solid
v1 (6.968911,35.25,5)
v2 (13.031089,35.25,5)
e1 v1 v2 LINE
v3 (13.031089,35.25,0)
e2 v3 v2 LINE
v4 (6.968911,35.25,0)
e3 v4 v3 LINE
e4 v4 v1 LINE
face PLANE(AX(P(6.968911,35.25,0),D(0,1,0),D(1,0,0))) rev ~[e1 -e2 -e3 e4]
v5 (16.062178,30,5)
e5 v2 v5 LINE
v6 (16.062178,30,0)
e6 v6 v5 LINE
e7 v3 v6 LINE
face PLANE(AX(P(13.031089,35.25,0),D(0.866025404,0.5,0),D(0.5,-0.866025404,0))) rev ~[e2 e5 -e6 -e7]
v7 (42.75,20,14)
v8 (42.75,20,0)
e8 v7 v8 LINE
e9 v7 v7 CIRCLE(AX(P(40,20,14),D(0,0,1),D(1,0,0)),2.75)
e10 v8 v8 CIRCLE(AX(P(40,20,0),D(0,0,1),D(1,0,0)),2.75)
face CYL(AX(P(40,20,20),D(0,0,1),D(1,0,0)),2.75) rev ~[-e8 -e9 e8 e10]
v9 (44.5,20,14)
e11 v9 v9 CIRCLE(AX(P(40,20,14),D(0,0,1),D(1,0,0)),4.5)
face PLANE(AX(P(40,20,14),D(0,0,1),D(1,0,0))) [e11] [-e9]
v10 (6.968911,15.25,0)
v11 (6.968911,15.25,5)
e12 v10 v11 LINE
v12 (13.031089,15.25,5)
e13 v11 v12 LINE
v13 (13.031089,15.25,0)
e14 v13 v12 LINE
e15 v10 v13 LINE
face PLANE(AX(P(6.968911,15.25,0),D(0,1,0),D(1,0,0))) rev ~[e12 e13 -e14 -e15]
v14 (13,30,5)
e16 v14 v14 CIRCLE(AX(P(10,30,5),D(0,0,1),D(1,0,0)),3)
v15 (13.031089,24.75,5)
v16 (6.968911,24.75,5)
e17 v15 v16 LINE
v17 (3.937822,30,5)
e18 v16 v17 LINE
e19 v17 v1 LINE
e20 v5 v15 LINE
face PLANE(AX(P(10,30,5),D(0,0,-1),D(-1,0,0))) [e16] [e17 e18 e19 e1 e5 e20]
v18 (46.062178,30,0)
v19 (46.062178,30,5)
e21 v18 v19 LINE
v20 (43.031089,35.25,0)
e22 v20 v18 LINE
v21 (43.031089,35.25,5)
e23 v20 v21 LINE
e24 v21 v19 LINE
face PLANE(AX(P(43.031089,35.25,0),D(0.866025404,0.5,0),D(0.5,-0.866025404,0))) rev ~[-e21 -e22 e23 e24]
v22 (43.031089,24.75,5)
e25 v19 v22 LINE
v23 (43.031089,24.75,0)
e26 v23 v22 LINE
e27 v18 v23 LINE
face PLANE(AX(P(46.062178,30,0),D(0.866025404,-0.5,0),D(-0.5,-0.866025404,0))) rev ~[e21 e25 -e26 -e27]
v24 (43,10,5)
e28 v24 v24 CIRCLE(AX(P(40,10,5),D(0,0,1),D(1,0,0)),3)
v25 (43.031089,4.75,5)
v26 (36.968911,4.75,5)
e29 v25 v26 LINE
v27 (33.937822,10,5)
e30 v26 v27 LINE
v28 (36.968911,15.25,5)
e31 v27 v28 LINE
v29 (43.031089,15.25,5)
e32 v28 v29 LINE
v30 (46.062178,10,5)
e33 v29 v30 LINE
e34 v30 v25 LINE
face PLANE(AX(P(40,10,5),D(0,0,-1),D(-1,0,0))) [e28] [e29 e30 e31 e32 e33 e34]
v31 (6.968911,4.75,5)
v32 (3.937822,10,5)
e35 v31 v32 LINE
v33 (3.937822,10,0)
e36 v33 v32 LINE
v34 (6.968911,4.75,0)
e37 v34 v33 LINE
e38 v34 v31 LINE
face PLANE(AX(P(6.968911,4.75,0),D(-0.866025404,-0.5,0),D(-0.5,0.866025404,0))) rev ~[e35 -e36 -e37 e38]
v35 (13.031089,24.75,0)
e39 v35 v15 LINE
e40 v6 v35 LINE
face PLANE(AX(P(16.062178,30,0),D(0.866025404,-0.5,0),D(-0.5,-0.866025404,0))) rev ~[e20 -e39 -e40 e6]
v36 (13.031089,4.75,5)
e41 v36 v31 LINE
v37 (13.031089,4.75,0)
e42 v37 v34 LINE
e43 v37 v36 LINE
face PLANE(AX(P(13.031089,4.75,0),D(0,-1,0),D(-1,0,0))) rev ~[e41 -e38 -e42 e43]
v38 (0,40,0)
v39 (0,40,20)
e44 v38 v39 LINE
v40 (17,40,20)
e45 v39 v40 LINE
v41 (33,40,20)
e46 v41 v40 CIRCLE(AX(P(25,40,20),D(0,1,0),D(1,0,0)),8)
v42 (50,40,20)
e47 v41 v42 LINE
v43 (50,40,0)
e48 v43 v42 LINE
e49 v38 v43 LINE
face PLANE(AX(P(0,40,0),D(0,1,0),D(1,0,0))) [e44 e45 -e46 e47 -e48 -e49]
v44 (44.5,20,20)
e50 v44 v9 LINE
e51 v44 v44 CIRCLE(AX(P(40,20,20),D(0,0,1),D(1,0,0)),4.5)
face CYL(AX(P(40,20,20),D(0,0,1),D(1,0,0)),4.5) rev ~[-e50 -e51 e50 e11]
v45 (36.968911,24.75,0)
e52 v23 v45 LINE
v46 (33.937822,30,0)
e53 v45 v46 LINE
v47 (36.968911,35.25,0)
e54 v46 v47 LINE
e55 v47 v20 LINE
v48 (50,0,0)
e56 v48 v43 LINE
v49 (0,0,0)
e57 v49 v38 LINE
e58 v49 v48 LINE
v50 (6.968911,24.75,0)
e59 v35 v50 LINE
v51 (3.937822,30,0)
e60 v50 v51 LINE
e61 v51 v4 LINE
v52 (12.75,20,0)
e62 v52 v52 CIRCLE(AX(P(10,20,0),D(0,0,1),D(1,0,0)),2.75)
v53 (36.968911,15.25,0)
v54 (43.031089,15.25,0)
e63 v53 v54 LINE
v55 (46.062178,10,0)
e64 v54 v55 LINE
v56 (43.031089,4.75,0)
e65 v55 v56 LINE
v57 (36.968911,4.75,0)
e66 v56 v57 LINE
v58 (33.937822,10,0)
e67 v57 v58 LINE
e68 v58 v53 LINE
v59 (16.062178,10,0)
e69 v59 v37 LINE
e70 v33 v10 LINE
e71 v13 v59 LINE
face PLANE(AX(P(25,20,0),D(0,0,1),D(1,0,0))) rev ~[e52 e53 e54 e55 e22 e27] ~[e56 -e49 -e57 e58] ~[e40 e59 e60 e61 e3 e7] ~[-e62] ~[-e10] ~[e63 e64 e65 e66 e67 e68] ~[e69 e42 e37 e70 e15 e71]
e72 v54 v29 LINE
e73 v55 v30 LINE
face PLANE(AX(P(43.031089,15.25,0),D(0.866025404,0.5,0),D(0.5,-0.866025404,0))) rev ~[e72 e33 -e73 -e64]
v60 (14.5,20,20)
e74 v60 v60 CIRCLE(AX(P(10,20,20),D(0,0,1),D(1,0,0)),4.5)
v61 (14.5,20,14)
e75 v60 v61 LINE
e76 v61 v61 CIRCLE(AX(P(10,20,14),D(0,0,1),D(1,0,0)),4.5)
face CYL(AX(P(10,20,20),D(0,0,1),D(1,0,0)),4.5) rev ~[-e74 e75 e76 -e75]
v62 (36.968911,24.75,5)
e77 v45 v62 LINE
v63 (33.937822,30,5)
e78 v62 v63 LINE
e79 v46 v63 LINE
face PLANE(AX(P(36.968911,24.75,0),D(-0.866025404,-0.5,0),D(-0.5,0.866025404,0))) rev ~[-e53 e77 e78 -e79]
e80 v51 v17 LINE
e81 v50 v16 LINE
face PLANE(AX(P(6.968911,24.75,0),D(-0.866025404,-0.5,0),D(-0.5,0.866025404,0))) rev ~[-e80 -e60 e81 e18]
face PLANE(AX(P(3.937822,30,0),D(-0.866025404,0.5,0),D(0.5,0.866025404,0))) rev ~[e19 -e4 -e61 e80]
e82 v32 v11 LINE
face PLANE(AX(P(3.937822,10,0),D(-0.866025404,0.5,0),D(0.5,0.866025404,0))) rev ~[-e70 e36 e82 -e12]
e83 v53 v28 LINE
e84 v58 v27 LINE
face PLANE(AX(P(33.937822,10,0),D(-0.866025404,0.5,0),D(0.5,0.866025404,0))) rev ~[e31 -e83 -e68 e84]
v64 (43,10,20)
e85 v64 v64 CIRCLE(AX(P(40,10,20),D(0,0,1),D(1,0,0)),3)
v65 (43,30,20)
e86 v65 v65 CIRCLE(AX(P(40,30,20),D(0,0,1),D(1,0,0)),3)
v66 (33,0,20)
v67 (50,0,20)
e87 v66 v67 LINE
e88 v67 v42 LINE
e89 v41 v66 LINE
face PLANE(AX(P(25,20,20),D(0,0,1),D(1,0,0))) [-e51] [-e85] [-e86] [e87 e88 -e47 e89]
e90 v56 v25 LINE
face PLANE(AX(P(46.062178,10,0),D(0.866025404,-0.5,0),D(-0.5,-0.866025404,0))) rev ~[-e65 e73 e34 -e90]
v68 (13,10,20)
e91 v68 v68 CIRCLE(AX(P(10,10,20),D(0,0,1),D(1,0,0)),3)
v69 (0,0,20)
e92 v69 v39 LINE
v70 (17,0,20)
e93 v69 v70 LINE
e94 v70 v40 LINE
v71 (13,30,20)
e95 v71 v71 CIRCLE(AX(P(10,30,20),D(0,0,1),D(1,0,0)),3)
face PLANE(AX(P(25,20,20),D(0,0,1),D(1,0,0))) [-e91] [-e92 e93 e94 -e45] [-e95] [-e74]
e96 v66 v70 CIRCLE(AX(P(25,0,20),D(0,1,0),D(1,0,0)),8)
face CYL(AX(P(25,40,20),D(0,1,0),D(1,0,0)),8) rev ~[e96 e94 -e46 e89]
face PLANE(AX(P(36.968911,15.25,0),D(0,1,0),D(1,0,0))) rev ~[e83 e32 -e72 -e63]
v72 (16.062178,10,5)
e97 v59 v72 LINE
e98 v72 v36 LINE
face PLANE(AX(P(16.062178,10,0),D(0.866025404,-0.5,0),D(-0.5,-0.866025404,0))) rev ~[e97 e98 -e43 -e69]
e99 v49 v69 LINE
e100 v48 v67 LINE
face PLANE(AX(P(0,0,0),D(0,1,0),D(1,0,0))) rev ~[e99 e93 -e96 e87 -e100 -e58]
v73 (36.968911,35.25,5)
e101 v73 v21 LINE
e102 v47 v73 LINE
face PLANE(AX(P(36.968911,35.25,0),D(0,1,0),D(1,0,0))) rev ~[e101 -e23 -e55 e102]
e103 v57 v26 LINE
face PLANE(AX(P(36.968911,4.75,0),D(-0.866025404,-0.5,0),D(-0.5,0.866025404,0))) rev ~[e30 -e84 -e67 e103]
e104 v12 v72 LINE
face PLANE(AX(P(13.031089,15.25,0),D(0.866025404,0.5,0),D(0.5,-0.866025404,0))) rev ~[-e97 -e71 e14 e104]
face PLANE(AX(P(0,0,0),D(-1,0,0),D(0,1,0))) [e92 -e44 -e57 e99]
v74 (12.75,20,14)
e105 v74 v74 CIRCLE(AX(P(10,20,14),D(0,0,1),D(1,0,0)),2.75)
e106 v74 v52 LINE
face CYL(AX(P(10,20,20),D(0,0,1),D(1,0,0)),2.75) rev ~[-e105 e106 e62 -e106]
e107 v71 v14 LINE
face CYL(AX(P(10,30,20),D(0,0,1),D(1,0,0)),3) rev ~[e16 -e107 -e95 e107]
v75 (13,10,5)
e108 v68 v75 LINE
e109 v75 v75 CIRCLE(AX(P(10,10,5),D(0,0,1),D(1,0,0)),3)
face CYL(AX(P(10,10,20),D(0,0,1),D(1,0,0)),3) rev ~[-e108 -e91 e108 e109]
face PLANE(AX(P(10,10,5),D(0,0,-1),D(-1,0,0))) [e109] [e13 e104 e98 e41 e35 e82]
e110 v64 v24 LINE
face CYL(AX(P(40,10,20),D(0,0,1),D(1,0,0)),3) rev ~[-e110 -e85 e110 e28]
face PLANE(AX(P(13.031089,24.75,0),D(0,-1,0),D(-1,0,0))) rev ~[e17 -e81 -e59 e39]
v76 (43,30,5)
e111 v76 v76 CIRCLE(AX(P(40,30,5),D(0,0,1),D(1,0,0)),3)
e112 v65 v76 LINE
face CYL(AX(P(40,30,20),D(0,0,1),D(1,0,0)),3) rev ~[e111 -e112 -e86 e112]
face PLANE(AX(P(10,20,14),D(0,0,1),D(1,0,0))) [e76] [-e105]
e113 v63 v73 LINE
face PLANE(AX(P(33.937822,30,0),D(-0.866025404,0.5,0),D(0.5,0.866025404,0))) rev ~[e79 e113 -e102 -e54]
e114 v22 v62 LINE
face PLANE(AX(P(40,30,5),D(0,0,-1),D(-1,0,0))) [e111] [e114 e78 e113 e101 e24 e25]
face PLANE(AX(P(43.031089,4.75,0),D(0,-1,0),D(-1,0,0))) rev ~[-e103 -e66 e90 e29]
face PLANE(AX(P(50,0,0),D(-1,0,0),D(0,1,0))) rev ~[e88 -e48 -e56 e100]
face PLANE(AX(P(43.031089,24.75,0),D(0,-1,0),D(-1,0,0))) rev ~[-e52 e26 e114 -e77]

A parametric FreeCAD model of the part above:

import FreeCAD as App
import Part
import Sketcher

V = App.Vector
Q = App.Units.Quantity

doc = App.newDocument("Part")
body = doc.addObject("PartDesign::Body", "Body")

# Sketch on XY plane
sketch1 = doc.addObject("Sketcher::SketchObject", "Sketch")
body.addObject(sketch1)
sketch1.AttachmentSupport = (doc.XY_Plane, [""])
sketch1.MapMode = "FlatFace"
sketch1.addGeometry(Part.LineSegment(V(0, 40, 0), V(0, 0, 0)), False)
sketch1.addGeometry(Part.LineSegment(V(0, 0, 0), V(50, 0, 0)), False)
sketch1.addGeometry(Part.LineSegment(V(50, 0, 0), V(50, 40, 0)), False)
sketch1.addGeometry(Part.LineSegment(V(50, 40, 0), V(0, 40, 0)), False)
sketch1.addConstraint(Sketcher.Constraint("Coincident", 0, 2, 1, 1))
sketch1.addConstraint(Sketcher.Constraint("Coincident", 1, 2, 2, 1))
sketch1.addConstraint(Sketcher.Constraint("Coincident", 2, 2, 3, 1))
sketch1.addConstraint(Sketcher.Constraint("Coincident", 3, 2, 0, 1))
sketch1.addConstraint(Sketcher.Constraint("Vertical", 0))
sketch1.addConstraint(Sketcher.Constraint("Horizontal", 1))
sketch1.addConstraint(Sketcher.Constraint("Vertical", 2))
sketch1.addConstraint(Sketcher.Constraint("Horizontal", 3))
sketch1.addConstraint(Sketcher.Constraint("Coincident", 0, 2, -1, 1))
sketch1.addConstraint(Sketcher.Constraint("DistanceX", 1, 1, 1, 2, 50.0))
sketch1.addConstraint(Sketcher.Constraint("DistanceY", 0, 2, 0, 1, 40.0))
pad1 = doc.addObject("PartDesign::Pad", "Pad")
body.addObject(pad1)
pad1.Profile = sketch1
pad1.Length = 20

# Sketch on XZ plane
sketch2 = doc.addObject("Sketcher::SketchObject", "Sketch001")
body.addObject(sketch2)
sketch2.AttachmentSupport = (doc.XZ_Plane, [""])
sketch2.MapMode = "FlatFace"
sketch2.AttachmentOffset = App.Placement(V(0, 0, -40), App.Rotation())
sketch2.addGeometry(Part.Circle(V(25, 20, 0), V(0, 0, 1), 8), False)
sketch2.addConstraint(Sketcher.Constraint("Diameter", 0, 16.0))
sketch2.addConstraint(Sketcher.Constraint("DistanceX", -1, 1, 0, 3, 25.0))
sketch2.addConstraint(Sketcher.Constraint("DistanceY", -1, 1, 0, 3, 20.0))
pocket1 = doc.addObject("PartDesign::Pocket", "Pocket")
body.addObject(pocket1)
pocket1.Profile = sketch2
pocket1.Length = 43
pocket1.Reversed = True

# Sketch on XY plane
sketch3 = doc.addObject("Sketcher::SketchObject", "Sketch002")
body.addObject(sketch3)
sketch3.AttachmentSupport = (doc.XY_Plane, [""])
sketch3.MapMode = "FlatFace"
sketch3.AttachmentOffset = App.Placement(V(0, 0, 20), App.Rotation())
sketch3.addGeometry(Part.Circle(V(10, 30, 0), V(0, 0, 1), 3), False)
sketch3.addGeometry(Part.Circle(V(10, 10, 0), V(0, 0, 1), 3), False)
sketch3.addGeometry(Part.Circle(V(40, 30, 0), V(0, 0, 1), 3), False)
sketch3.addGeometry(Part.Circle(V(40, 10, 0), V(0, 0, 1), 3), False)
sketch3.addConstraint(Sketcher.Constraint("Equal", 0, 1))
sketch3.addConstraint(Sketcher.Constraint("Equal", 1, 2))
sketch3.addConstraint(Sketcher.Constraint("Equal", 2, 3))
sketch3.addConstraint(Sketcher.Constraint("Horizontal", 0, 3, 2, 3))
sketch3.addConstraint(Sketcher.Constraint("Horizontal", 1, 3, 3, 3))
sketch3.addConstraint(Sketcher.Constraint("Vertical", 0, 3, 1, 3))
sketch3.addConstraint(Sketcher.Constraint("Vertical", 2, 3, 3, 3))
sketch3.addConstraint(Sketcher.Constraint("Diameter", 0, 6.0))
sketch3.addConstraint(Sketcher.Constraint("DistanceX", -1, 1, 0, 3, 10.0))
sketch3.addConstraint(Sketcher.Constraint("DistanceY", -1, 1, 0, 3, 30.0))
sketch3.addConstraint(Sketcher.Constraint("DistanceY", -1, 1, 1, 3, 10.0))
sketch3.addConstraint(Sketcher.Constraint("DistanceX", -1, 1, 2, 3, 40.0))
pocket2 = doc.addObject("PartDesign::Pocket", "Pocket001")
body.addObject(pocket2)
pocket2.Profile = sketch3
pocket2.Length = 43

# Sketch on XY plane
sketch4 = doc.addObject("Sketcher::SketchObject", "Sketch003")
body.addObject(sketch4)
sketch4.AttachmentSupport = (doc.XY_Plane, [""])
sketch4.MapMode = "FlatFace"
sketch4.AttachmentOffset = App.Placement(V(0, 0, 20), App.Rotation())
sketch4.addGeometry(Part.Circle(V(10, 20, 0), V(0, 0, 1), 2.8), False)
sketch4.addGeometry(Part.Circle(V(40, 20, 0), V(0, 0, 1), 2.8), False)
sketch4.addConstraint(Sketcher.Constraint("Equal", 0, 1))
sketch4.addConstraint(Sketcher.Constraint("Horizontal", 0, 3, 1, 3))
sketch4.addConstraint(Sketcher.Constraint("Diameter", 0, 5.5))
sketch4.addConstraint(Sketcher.Constraint("DistanceX", -1, 1, 0, 3, 10.0))
sketch4.addConstraint(Sketcher.Constraint("DistanceY", -1, 1, 0, 3, 20.0))
sketch4.addConstraint(Sketcher.Constraint("DistanceX", -1, 1, 1, 3, 40.0))
pocket3 = doc.addObject("PartDesign::Pocket", "Pocket002")
body.addObject(pocket3)
pocket3.Profile = sketch4
pocket3.Length = 50

# Sketch on XY plane
sketch5 = doc.addObject("Sketcher::SketchObject", "Sketch004")
body.addObject(sketch5)
sketch5.AttachmentSupport = (doc.XY_Plane, [""])
sketch5.MapMode = "FlatFace"
sketch5.AttachmentOffset = App.Placement(V(0, 0, 20), App.Rotation())
sketch5.addGeometry(Part.Circle(V(10, 20, 0), V(0, 0, 1), 4.5), False)
sketch5.addGeometry(Part.Circle(V(40, 20, 0), V(0, 0, 1), 4.5), False)
sketch5.addConstraint(Sketcher.Constraint("Equal", 0, 1))
sketch5.addConstraint(Sketcher.Constraint("Horizontal", 0, 3, 1, 3))
sketch5.addConstraint(Sketcher.Constraint("Diameter", 0, 9.0))
sketch5.addConstraint(Sketcher.Constraint("DistanceX", -1, 1, 0, 3, 10.0))
sketch5.addConstraint(Sketcher.Constraint("DistanceY", -1, 1, 0, 3, 20.0))
sketch5.addConstraint(Sketcher.Constraint("DistanceX", -1, 1, 1, 3, 40.0))
pocket4 = doc.addObject("PartDesign::Pocket", "Pocket003")
body.addObject(pocket4)
pocket4.Profile = sketch5
pocket4.Length = 6

# Sketch on XY plane
sketch6 = doc.addObject("Sketcher::SketchObject", "Sketch005")
body.addObject(sketch6)
sketch6.AttachmentSupport = (doc.XY_Plane, [""])
sketch6.MapMode = "FlatFace"
sketch6.addGeometry(Part.LineSegment(V(4, 10, 0), V(7, 15, 0)), False)
sketch6.addGeometry(Part.LineSegment(V(7, 15, 0), V(13, 15, 0)), False)
sketch6.addGeometry(Part.LineSegment(V(13, 15, 0), V(16, 10, 0)), False)
sketch6.addGeometry(Part.LineSegment(V(16, 10, 0), V(13, 5, 0)), False)
sketch6.addGeometry(Part.LineSegment(V(13, 5, 0), V(7, 5, 0)), False)
sketch6.addGeometry(Part.LineSegment(V(7, 5, 0), V(4, 10, 0)), False)
sketch6.addGeometry(Part.LineSegment(V(43, 15, 0), V(46, 10, 0)), False)
sketch6.addGeometry(Part.LineSegment(V(46, 10, 0), V(43, 5, 0)), False)
sketch6.addGeometry(Part.LineSegment(V(43, 5, 0), V(37, 5, 0)), False)
sketch6.addGeometry(Part.LineSegment(V(37, 5, 0), V(34, 10, 0)), False)
sketch6.addGeometry(Part.LineSegment(V(34, 10, 0), V(37, 15, 0)), False)
sketch6.addGeometry(Part.LineSegment(V(37, 15, 0), V(43, 15, 0)), False)
sketch6.addGeometry(Part.LineSegment(V(37, 25, 0), V(34, 30, 0)), False)
sketch6.addGeometry(Part.LineSegment(V(34, 30, 0), V(37, 35, 0)), False)
sketch6.addGeometry(Part.LineSegment(V(37, 35, 0), V(43, 35, 0)), False)
sketch6.addGeometry(Part.LineSegment(V(43, 35, 0), V(46, 30, 0)), False)
sketch6.addGeometry(Part.LineSegment(V(46, 30, 0), V(43, 25, 0)), False)
sketch6.addGeometry(Part.LineSegment(V(43, 25, 0), V(37, 25, 0)), False)
sketch6.addGeometry(Part.LineSegment(V(7, 25, 0), V(4, 30, 0)), False)
sketch6.addGeometry(Part.LineSegment(V(4, 30, 0), V(7, 35, 0)), False)
sketch6.addGeometry(Part.LineSegment(V(7, 35, 0), V(13, 35, 0)), False)
sketch6.addGeometry(Part.LineSegment(V(13, 35, 0), V(16, 30, 0)), False)
sketch6.addGeometry(Part.LineSegment(V(16, 30, 0), V(13, 25, 0)), False)
sketch6.addGeometry(Part.LineSegment(V(13, 25, 0), V(7, 25, 0)), False)
sketch6.addConstraint(Sketcher.Constraint("Coincident", 0, 2, 1, 1))
sketch6.addConstraint(Sketcher.Constraint("Coincident", 1, 2, 2, 1))
sketch6.addConstraint(Sketcher.Constraint("Coincident", 2, 2, 3, 1))
sketch6.addConstraint(Sketcher.Constraint("Coincident", 3, 2, 4, 1))
sketch6.addConstraint(Sketcher.Constraint("Coincident", 4, 2, 5, 1))
sketch6.addConstraint(Sketcher.Constraint("Coincident", 5, 2, 0, 1))
sketch6.addConstraint(Sketcher.Constraint("Coincident", 6, 2, 7, 1))
sketch6.addConstraint(Sketcher.Constraint("Coincident", 7, 2, 8, 1))
sketch6.addConstraint(Sketcher.Constraint("Coincident", 8, 2, 9, 1))
sketch6.addConstraint(Sketcher.Constraint("Coincident", 9, 2, 10, 1))
sketch6.addConstraint(Sketcher.Constraint("Coincident", 10, 2, 11, 1))
sketch6.addConstraint(Sketcher.Constraint("Coincident", 11, 2, 6, 1))
sketch6.addConstraint(Sketcher.Constraint("Coincident", 12, 2, 13, 1))
sketch6.addConstraint(Sketcher.Constraint("Coincident", 13, 2, 14, 1))
sketch6.addConstraint(Sketcher.Constraint("Coincident", 14, 2, 15, 1))
sketch6.addConstraint(Sketcher.Constraint("Coincident", 15, 2, 16, 1))
sketch6.addConstraint(Sketcher.Constraint("Coincident", 16, 2, 17, 1))
sketch6.addConstraint(Sketcher.Constraint("Coincident", 17, 2, 12, 1))
sketch6.addConstraint(Sketcher.Constraint("Coincident", 18, 2, 19, 1))
sketch6.addConstraint(Sketcher.Constraint("Coincident", 19, 2, 20, 1))
sketch6.addConstraint(Sketcher.Constraint("Coincident", 20, 2, 21, 1))
sketch6.addConstraint(Sketcher.Constraint("Coincident", 21, 2, 22, 1))
sketch6.addConstraint(Sketcher.Constraint("Coincident", 22, 2, 23, 1))
sketch6.addConstraint(Sketcher.Constraint("Coincident", 23, 2, 18, 1))
sketch6.addConstraint(Sketcher.Constraint("Horizontal", 1))
sketch6.addConstraint(Sketcher.Constraint("Horizontal", 4))
sketch6.addConstraint(Sketcher.Constraint("Horizontal", 8))
sketch6.addConstraint(Sketcher.Constraint("Horizontal", 11))
sketch6.addConstraint(Sketcher.Constraint("Horizontal", 14))
sketch6.addConstraint(Sketcher.Constraint("Horizontal", 17))
sketch6.addConstraint(Sketcher.Constraint("Horizontal", 20))
sketch6.addConstraint(Sketcher.Constraint("Horizontal", 23))
sketch6.addConstraint(Sketcher.Constraint("Parallel", 0, 3))
sketch6.addConstraint(Sketcher.Constraint("Parallel", 2, 5))
sketch6.addConstraint(Sketcher.Constraint("Parallel", 5, 6))
sketch6.addConstraint(Sketcher.Constraint("Parallel", 3, 7))
sketch6.addConstraint(Sketcher.Constraint("Parallel", 6, 9))
sketch6.addConstraint(Sketcher.Constraint("Parallel", 7, 10))
sketch6.addConstraint(Sketcher.Constraint("Parallel", 9, 12))
sketch6.addConstraint(Sketcher.Constraint("Parallel", 10, 13))
sketch6.addConstraint(Sketcher.Constraint("Parallel", 12, 15))
sketch6.addConstraint(Sketcher.Constraint("Parallel", 13, 16))
sketch6.addConstraint(Sketcher.Constraint("Parallel", 15, 18))
sketch6.addConstraint(Sketcher.Constraint("Parallel", 16, 19))
sketch6.addConstraint(Sketcher.Constraint("Parallel", 18, 21))
sketch6.addConstraint(Sketcher.Constraint("Parallel", 19, 22))
sketch6.addConstraint(Sketcher.Constraint("Horizontal", 2, 2, 5, 2))
sketch6.addConstraint(Sketcher.Constraint("Horizontal", 5, 2, 6, 2))
sketch6.addConstraint(Sketcher.Constraint("Horizontal", 4, 2, 7, 2))
sketch6.addConstraint(Sketcher.Constraint("Horizontal", 6, 2, 9, 2))
sketch6.addConstraint(Sketcher.Constraint("Horizontal", 1, 2, 10, 2))
sketch6.addConstraint(Sketcher.Constraint("Horizontal", 12, 2, 15, 2))
sketch6.addConstraint(Sketcher.Constraint("Horizontal", 15, 2, 18, 2))
sketch6.addConstraint(Sketcher.Constraint("Horizontal", 14, 2, 19, 2))
sketch6.addConstraint(Sketcher.Constraint("Horizontal", 18, 2, 21, 2))
sketch6.addConstraint(Sketcher.Constraint("Horizontal", 17, 2, 22, 2))
sketch6.addConstraint(Sketcher.Constraint("Vertical", 1, 2, 3, 2))
sketch6.addConstraint(Sketcher.Constraint("Vertical", 0, 2, 4, 2))
sketch6.addConstraint(Sketcher.Constraint("Vertical", 9, 2, 12, 2))
sketch6.addConstraint(Sketcher.Constraint("Vertical", 10, 2, 13, 2))
sketch6.addConstraint(Sketcher.Constraint("Vertical", 11, 2, 14, 2))
sketch6.addConstraint(Sketcher.Constraint("Vertical", 14, 2, 16, 2))
sketch6.addConstraint(Sketcher.Constraint("Vertical", 5, 2, 18, 2))
sketch6.addConstraint(Sketcher.Constraint("Vertical", 3, 2, 20, 2))
sketch6.addConstraint(Sketcher.Constraint("Equal", 4, 8))
sketch6.addConstraint(Sketcher.Constraint("Angle", 0, Q("60 deg")))
sketch6.addConstraint(Sketcher.Constraint("DistanceY", -1, 1, 2, 2, 10.0))
sketch6.addConstraint(Sketcher.Constraint("DistanceY", -1, 1, 12, 2, 30.0))
sketch6.addConstraint(Sketcher.Constraint("DistanceX", 2, 2, 6, 2, 30.0))
sketch6.addConstraint(Sketcher.Constraint("DistanceY", 3, 2, 1, 2, 10.5))
sketch6.addConstraint(Sketcher.Constraint("DistanceX", 1, 1, 1, 2, 6.062178))
sketch6.addConstraint(Sketcher.Constraint("DistanceX", -1, 1, 0, 2, 6.968911))
pocket5 = doc.addObject("PartDesign::Pocket", "Pocket004")
body.addObject(pocket5)
pocket5.Profile = sketch6
pocket5.Length = 5
pocket5.Reversed = True

doc.recompute()
